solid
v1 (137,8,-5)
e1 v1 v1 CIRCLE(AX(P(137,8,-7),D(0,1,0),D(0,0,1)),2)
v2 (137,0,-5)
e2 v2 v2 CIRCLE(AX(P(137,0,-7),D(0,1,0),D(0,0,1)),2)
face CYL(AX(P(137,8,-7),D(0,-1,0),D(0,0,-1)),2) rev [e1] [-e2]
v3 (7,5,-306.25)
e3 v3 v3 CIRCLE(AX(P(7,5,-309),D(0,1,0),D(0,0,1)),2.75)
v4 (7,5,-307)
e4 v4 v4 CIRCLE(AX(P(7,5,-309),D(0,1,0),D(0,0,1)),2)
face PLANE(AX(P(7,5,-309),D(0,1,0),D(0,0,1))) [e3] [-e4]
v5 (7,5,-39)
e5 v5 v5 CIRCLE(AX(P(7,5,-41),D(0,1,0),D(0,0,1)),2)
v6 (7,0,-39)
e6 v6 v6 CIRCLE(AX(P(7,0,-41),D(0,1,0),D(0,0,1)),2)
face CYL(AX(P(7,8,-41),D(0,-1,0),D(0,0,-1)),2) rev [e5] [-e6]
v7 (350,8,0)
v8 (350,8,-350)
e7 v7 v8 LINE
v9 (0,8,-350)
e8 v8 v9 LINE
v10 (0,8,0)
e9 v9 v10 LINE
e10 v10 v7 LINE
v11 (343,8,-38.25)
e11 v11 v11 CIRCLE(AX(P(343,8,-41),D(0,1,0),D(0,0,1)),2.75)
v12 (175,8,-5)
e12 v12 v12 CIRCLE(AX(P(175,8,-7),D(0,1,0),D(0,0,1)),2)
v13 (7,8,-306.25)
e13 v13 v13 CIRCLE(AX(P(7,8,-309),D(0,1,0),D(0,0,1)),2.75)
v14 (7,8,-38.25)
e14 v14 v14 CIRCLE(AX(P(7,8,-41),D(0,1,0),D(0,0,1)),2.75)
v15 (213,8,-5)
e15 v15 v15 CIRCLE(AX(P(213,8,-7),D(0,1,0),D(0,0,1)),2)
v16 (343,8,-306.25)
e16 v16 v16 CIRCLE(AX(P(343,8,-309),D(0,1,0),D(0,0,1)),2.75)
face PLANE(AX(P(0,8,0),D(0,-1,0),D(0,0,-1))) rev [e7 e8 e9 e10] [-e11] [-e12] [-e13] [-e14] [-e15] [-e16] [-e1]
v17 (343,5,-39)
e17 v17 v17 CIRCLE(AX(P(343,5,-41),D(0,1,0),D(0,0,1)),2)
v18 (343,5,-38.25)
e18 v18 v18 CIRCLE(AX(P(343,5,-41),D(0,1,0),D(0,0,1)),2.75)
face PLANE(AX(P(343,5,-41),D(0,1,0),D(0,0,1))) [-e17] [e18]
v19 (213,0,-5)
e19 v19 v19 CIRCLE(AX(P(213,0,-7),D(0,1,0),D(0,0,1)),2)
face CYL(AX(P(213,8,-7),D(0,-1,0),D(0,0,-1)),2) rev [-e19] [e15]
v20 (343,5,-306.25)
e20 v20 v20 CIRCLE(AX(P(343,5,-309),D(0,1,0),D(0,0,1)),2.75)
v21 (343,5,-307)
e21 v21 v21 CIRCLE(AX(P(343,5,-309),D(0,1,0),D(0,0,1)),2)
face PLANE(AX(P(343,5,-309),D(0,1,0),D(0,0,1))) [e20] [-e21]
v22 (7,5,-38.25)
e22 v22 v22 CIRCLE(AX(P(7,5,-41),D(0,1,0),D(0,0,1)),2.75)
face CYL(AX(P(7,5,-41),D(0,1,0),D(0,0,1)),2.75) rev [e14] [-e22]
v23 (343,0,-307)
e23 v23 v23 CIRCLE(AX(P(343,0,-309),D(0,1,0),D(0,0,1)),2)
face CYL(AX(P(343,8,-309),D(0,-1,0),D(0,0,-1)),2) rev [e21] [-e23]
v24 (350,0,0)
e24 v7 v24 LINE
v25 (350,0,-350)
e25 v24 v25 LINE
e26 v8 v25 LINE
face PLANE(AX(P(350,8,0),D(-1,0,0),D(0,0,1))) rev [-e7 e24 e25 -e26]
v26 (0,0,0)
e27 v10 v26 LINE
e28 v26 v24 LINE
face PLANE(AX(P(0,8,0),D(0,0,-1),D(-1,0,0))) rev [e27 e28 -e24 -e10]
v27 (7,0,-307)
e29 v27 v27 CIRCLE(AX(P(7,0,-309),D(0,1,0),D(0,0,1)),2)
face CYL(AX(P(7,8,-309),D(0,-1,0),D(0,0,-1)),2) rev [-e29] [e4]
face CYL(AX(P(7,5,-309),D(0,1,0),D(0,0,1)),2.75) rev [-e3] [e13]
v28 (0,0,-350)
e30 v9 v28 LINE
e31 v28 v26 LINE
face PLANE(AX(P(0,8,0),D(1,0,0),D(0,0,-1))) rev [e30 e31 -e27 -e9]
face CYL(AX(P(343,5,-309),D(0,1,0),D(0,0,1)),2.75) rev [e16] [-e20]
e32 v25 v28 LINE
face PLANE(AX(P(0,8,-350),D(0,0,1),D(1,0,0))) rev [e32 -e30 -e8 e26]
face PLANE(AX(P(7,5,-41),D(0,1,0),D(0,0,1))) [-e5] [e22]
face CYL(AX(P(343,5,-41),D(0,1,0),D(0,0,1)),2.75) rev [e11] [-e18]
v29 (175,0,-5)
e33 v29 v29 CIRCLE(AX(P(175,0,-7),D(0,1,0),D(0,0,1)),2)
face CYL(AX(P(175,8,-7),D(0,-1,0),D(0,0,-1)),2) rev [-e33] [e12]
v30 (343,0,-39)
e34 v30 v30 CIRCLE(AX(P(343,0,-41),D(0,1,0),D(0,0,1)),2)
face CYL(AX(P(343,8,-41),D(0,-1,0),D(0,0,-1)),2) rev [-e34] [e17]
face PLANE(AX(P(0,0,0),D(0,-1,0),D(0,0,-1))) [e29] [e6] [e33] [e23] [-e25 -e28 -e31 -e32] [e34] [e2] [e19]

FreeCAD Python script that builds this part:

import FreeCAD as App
import Part
import Sketcher


def add_polygon(sketch, points):
    """Adds a closed chain of lines whose ends are joined by coincident constraints."""
    first, n = sketch.GeometryCount, len(points)
    for a, b in zip(points, points[1:] + points[:1]):
        sketch.addGeometry(Part.LineSegment(App.Vector(*a, 0), App.Vector(*b, 0)), False)
    for i in range(n):
        sketch.addConstraint(Sketcher.Constraint("Coincident", first + i, 2, first + (i + 1) % n, 1))

doc = App.newDocument("Part")
params = doc.addObject("Spreadsheet::Sheet", "Params")
for row, (alias, value) in enumerate([
    ("sketch1_diameter", "4 mm"),
    ("sketch1_width", "350 mm"),
    ("pad1_length", "8 mm"),
    ("sketch2_diameter", "5.5 mm"),
    ("pocket1_length", "3 mm"),
], start=1):
    params.set(f"A{row}", alias)
    params.set(f"B{row}", "=" + value)
    params.setAlias(f"B{row}", alias)

body = doc.addObject("PartDesign::Body", "Body")

sketch1 = body.newObject("Sketcher::SketchObject", "Sketch")
sketch1.AttachmentSupport = (doc.getObject("XZ_Plane"), [""])
sketch1.MapMode = "FlatFace"
add_polygon(sketch1, [(0, -350), (0, 0), (350, 0), (350, -350)])
sketch1.addGeometry(Part.Circle(App.Vector(7, -41, 0), App.Vector(0, 0, 1), 2), False)
sketch1.addGeometry(Part.Circle(App.Vector(137, -7, 0), App.Vector(0, 0, 1), 2), False)
sketch1.addGeometry(Part.Circle(App.Vector(175, -7, 0), App.Vector(0, 0, 1), 2), False)
sketch1.addGeometry(Part.Circle(App.Vector(213, -7, 0), App.Vector(0, 0, 1), 2), False)
sketch1.addGeometry(Part.Circle(App.Vector(343, -41, 0), App.Vector(0, 0, 1), 2), False)
sketch1.addGeometry(Part.Circle(App.Vector(7, -309, 0), App.Vector(0, 0, 1), 2), False)
sketch1.addGeometry(Part.Circle(App.Vector(343, -309, 0), App.Vector(0, 0, 1), 2), False)
sketch1.addConstraint([
    Sketcher.Constraint("Vertical", 0),
    Sketcher.Constraint("Horizontal", 1),
    Sketcher.Constraint("Vertical", 2),
    Sketcher.Constraint("Horizontal", 3),
    Sketcher.Constraint("Coincident", 0, 2, -1, 1),
    Sketcher.Constraint("Equal", 4, 5),
    Sketcher.Constraint("Equal", 5, 6),
    Sketcher.Constraint("Equal", 6, 7),
    Sketcher.Constraint("Equal", 7, 8),
    Sketcher.Constraint("Equal", 8, 9),
    Sketcher.Constraint("Equal", 9, 10),
    Sketcher.Constraint("Horizontal", 5, 3, 6, 3),
    Sketcher.Constraint("Horizontal", 6, 3, 7, 3),
    Sketcher.Constraint("Horizontal", 4, 3, 8, 3),
    Sketcher.Constraint("Horizontal", 9, 3, 10, 3),
    Sketcher.Constraint("Vertical", 4, 3, 9, 3),
    Sketcher.Constraint("Vertical", 8, 3, 10, 3),
    Sketcher.Constraint("Equal", 3, 0),
    Sketcher.Constraint("Diameter", 4, 4.0),
    Sketcher.Constraint("DistanceX", 1, 1, 1, 2, 350.0),
    Sketcher.Constraint("DistanceX", -1, 1, 4, 3, 7.0),
    Sketcher.Constraint("DistanceY", 4, 3, -1, 1, 41.0),
    Sketcher.Constraint("DistanceX", -1, 1, 5, 3, 137.0),
    Sketcher.Constraint("DistanceY", 5, 3, -1, 1, 7.0),
    Sketcher.Constraint("DistanceX", -1, 1, 6, 3, 175.0),
    Sketcher.Constraint("DistanceX", -1, 1, 7, 3, 213.0),
    Sketcher.Constraint("DistanceX", -1, 1, 8, 3, 343.0),
    Sketcher.Constraint("DistanceY", 9, 3, -1, 1, 309.0),
])
sketch1.setExpression("Constraints[22]", "Params.sketch1_diameter")
sketch1.setExpression("Constraints[23]", "Params.sketch1_width")
pad1 = body.newObject("PartDesign::Pad", "Pad")
pad1.Profile = sketch1
pad1.setExpression("Length", "Params.pad1_length")
pad1.Reversed = True

sketch2 = body.newObject("Sketcher::SketchObject", "Sketch001")
sketch2.AttachmentSupport = (doc.getObject("XZ_Plane"), [""])
sketch2.MapMode = "FlatFace"
sketch2.AttachmentOffset = App.Placement(App.Vector(0, 0, -8), App.Rotation())
sketch2.addGeometry([
    Part.Circle(App.Vector(7, -309, 0), App.Vector(0, 0, 1), 2.75),
    Part.Circle(App.Vector(343, -309, 0), App.Vector(0, 0, 1), 2.75),
    Part.Circle(App.Vector(7, -41, 0), App.Vector(0, 0, 1), 2.75),
    Part.Circle(App.Vector(343, -41, 0), App.Vector(0, 0, 1), 2.75),
], False)
sketch2.addConstraint([
    Sketcher.Constraint("Equal", 0, 1),
    Sketcher.Constraint("Equal", 1, 2),
    Sketcher.Constraint("Equal", 2, 3),
    Sketcher.Constraint("Horizontal", 0, 3, 1, 3),
    Sketcher.Constraint("Horizontal", 2, 3, 3, 3),
    Sketcher.Constraint("Vertical", 0, 3, 2, 3),
    Sketcher.Constraint("Vertical", 1, 3, 3, 3),
    Sketcher.Constraint("Diameter", 0, 5.5),
    Sketcher.Constraint("DistanceX", -1, 1, 0, 3, 7.0),
    Sketcher.Constraint("DistanceY", 0, 3, -1, 1, 309.0),
    Sketcher.Constraint("DistanceX", -1, 1, 1, 3, 343.0),
    Sketcher.Constraint("DistanceY", 2, 3, -1, 1, 41.0),
])
sketch2.setExpression("Constraints[7]", "Params.sketch2_diameter")
pocket1 = body.newObject("PartDesign::Pocket", "Pocket")
pocket1.Profile = sketch2
pocket1.setExpression("Length", "Params.pocket1_length")
pocket1.Reversed = True

doc.recompute()
